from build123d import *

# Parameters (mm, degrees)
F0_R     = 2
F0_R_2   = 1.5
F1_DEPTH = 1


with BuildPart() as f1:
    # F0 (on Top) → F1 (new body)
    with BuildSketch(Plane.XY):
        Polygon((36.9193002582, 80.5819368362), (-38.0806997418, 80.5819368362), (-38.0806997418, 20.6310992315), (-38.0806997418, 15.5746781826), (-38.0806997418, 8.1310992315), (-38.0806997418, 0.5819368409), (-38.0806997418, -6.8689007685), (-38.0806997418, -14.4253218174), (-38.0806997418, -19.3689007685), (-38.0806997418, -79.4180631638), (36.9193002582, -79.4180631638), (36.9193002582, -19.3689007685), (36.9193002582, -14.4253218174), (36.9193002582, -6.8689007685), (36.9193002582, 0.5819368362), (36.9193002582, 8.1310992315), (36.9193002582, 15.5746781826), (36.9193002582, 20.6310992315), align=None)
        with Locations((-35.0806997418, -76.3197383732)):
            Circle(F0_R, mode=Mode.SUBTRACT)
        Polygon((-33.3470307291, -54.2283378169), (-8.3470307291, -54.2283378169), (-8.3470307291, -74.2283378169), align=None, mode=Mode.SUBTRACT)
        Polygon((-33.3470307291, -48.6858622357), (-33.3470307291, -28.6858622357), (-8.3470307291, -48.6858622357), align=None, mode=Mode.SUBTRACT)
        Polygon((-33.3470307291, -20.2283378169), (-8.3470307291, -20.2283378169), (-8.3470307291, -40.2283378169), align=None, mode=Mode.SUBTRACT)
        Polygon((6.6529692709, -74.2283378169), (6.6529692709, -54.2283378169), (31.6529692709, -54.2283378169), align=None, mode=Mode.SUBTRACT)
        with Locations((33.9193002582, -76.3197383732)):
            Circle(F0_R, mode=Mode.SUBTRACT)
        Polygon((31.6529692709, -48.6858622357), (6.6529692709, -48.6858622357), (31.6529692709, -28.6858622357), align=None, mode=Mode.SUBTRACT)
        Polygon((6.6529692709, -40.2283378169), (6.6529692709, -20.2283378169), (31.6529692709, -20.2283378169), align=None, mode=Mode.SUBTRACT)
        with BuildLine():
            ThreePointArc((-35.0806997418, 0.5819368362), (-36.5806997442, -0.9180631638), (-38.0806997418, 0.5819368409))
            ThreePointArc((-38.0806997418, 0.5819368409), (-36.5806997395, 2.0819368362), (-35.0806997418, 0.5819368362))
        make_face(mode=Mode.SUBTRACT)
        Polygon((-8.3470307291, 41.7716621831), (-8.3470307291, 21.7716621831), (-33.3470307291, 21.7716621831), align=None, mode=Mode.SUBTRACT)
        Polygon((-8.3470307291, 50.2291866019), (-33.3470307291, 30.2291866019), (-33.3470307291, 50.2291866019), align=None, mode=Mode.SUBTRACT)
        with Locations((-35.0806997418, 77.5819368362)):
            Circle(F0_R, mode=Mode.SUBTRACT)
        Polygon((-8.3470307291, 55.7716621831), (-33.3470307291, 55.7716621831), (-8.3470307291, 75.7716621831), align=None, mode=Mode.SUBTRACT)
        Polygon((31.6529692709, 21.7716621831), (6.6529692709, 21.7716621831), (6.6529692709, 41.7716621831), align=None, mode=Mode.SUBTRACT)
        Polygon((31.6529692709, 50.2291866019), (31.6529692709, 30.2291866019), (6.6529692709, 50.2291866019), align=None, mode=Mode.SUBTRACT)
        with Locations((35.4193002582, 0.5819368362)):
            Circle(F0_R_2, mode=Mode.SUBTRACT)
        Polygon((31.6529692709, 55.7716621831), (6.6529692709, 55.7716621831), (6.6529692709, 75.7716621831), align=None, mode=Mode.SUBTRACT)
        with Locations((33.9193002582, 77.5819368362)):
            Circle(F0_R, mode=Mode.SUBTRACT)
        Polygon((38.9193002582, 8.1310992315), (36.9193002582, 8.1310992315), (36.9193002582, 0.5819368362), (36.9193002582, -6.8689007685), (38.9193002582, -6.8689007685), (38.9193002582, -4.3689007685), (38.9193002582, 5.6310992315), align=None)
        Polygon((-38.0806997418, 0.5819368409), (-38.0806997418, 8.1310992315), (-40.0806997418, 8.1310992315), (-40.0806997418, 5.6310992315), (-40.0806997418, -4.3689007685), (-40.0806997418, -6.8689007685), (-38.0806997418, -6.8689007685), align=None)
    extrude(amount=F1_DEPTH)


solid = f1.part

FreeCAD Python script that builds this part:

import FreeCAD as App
import Part
import Sketcher
from FreeCAD import Vector

doc = App.newDocument("Part")
body = doc.addObject("PartDesign::Body", "Body")

# Sketch on XY plane
sketch1 = body.newObject("Sketcher::SketchObject", "Sketch")
sketch1.AttachmentSupport = (doc.getObject("XY_Plane"), [""])
sketch1.MapMode = "FlatFace"
sketch1.addGeometry(Part.LineSegment(Vector(-38.0807, 80.581937, 0), Vector(-38.0807, 8.131099, 0)), False)
sketch1.addGeometry(Part.LineSegment(Vector(-38.0807, 8.131099, 0), Vector(-40.0807, 8.131099, 0)), False)
sketch1.addGeometry(Part.LineSegment(Vector(-40.0807, 8.131099, 0), Vector(-40.0807, -6.868901, 0)), False)
sketch1.addGeometry(Part.LineSegment(Vector(-40.0807, -6.868901, 0), Vector(-38.0807, -6.868901, 0)), False)
sketch1.addGeometry(Part.LineSegment(Vector(-38.0807, -6.868901, 0), Vector(-38.0807, -79.418063, 0)), False)
sketch1.addGeometry(Part.LineSegment(Vector(-38.0807, -79.418063, 0), Vector(36.9193, -79.418063, 0)), False)
sketch1.addGeometry(Part.LineSegment(Vector(36.9193, -79.418063, 0), Vector(36.9193, -6.868901, 0)), False)
sketch1.addGeometry(Part.LineSegment(Vector(36.9193, -6.868901, 0), Vector(38.9193, -6.868901, 0)), False)
sketch1.addGeometry(Part.LineSegment(Vector(38.9193, -6.868901, 0), Vector(38.9193, 8.131099, 0)), False)
sketch1.addGeometry(Part.LineSegment(Vector(38.9193, 8.131099, 0), Vector(36.9193, 8.131099, 0)), False)
sketch1.addGeometry(Part.LineSegment(Vector(36.9193, 8.131099, 0), Vector(36.9193, 80.581937, 0)), False)
sketch1.addGeometry(Part.LineSegment(Vector(36.9193, 80.581937, 0), Vector(-38.0807, 80.581937, 0)), False)
sketch1.addGeometry(Part.Circle(Vector(-35.0807, -76.319738, 0), Vector(0, 0, 1), 2), False)
sketch1.addGeometry(Part.LineSegment(Vector(-8.347031, -74.228338, 0), Vector(-33.347031, -54.228338, 0)), False)
sketch1.addGeometry(Part.LineSegment(Vector(-33.347031, -54.228338, 0), Vector(-8.347031, -54.228338, 0)), False)
sketch1.addGeometry(Part.LineSegment(Vector(-8.347031, -54.228338, 0), Vector(-8.347031, -74.228338, 0)), False)
sketch1.addGeometry(Part.LineSegment(Vector(-8.347031, -48.685862, 0), Vector(-33.347031, -48.685862, 0)), False)
sketch1.addGeometry(Part.LineSegment(Vector(-33.347031, -48.685862, 0), Vector(-33.347031, -28.685862, 0)), False)
sketch1.addGeometry(Part.LineSegment(Vector(-33.347031, -28.685862, 0), Vector(-8.347031, -48.685862, 0)), False)
sketch1.addGeometry(Part.LineSegment(Vector(-8.347031, -40.228338, 0), Vector(-33.347031, -20.228338, 0)), False)
sketch1.addGeometry(Part.LineSegment(Vector(-33.347031, -20.228338, 0), Vector(-8.347031, -20.228338, 0)), False)
sketch1.addGeometry(Part.LineSegment(Vector(-8.347031, -20.228338, 0), Vector(-8.347031, -40.228338, 0)), False)
sketch1.addGeometry(Part.Circle(Vector(-36.5807, 0.581937, 0), Vector(0, 0, 1), 1.5), False)
sketch1.addGeometry(Part.LineSegment(Vector(31.652969, -54.228338, 0), Vector(6.652969, -74.228338, 0)), False)
sketch1.addGeometry(Part.LineSegment(Vector(6.652969, -74.228338, 0), Vector(6.652969, -54.228338, 0)), False)
sketch1.addGeometry(Part.LineSegment(Vector(6.652969, -54.228338, 0), Vector(31.652969, -54.228338, 0)), False)
sketch1.addGeometry(Part.Circle(Vector(33.9193, -76.319738, 0), Vector(0, 0, 1), 2), False)
sketch1.addGeometry(Part.LineSegment(Vector(31.652969, -28.685862, 0), Vector(31.652969, -48.685862, 0)), False)
sketch1.addGeometry(Part.LineSegment(Vector(31.652969, -48.685862, 0), Vector(6.652969, -48.685862, 0)), False)
sketch1.addGeometry(Part.LineSegment(Vector(6.652969, -48.685862, 0), Vector(31.652969, -28.685862, 0)), False)
sketch1.addGeometry(Part.LineSegment(Vector(31.652969, -20.228338, 0), Vector(6.652969, -40.228338, 0)), False)
sketch1.addGeometry(Part.LineSegment(Vector(6.652969, -40.228338, 0), Vector(6.652969, -20.228338, 0)), False)
sketch1.addGeometry(Part.LineSegment(Vector(6.652969, -20.228338, 0), Vector(31.652969, -20.228338, 0)), False)
sketch1.addGeometry(Part.Circle(Vector(35.4193, 0.581937, 0), Vector(0, 0, 1), 1.5), False)
sketch1.addGeometry(Part.LineSegment(Vector(-33.347031, 21.771662, 0), Vector(-8.347031, 41.771662, 0)), False)
sketch1.addGeometry(Part.LineSegment(Vector(-8.347031, 41.771662, 0), Vector(-8.347031, 21.771662, 0)), False)
sketch1.addGeometry(Part.LineSegment(Vector(-8.347031, 21.771662, 0), Vector(-33.347031, 21.771662, 0)), False)
sketch1.addGeometry(Part.LineSegment(Vector(-33.347031, 50.229187, 0), Vector(-8.347031, 50.229187, 0)), False)
sketch1.addGeometry(Part.LineSegment(Vector(-8.347031, 50.229187, 0), Vector(-33.347031, 30.229187, 0)), False)
sketch1.addGeometry(Part.LineSegment(Vector(-33.347031, 30.229187, 0), Vector(-33.347031, 50.229187, 0)), False)
sketch1.addGeometry(Part.Circle(Vector(-35.0807, 77.581937, 0), Vector(0, 0, 1), 2), False)
sketch1.addGeometry(Part.LineSegment(Vector(-8.347031, 75.771662, 0), Vector(-8.347031, 55.771662, 0)), False)
sketch1.addGeometry(Part.LineSegment(Vector(-8.347031, 55.771662, 0), Vector(-33.347031, 55.771662, 0)), False)
sketch1.addGeometry(Part.LineSegment(Vector(-33.347031, 55.771662, 0), Vector(-8.347031, 75.771662, 0)), False)
sketch1.addGeometry(Part.LineSegment(Vector(6.652969, 41.771662, 0), Vector(31.652969, 21.771662, 0)), False)
sketch1.addGeometry(Part.LineSegment(Vector(31.652969, 21.771662, 0), Vector(6.652969, 21.771662, 0)), False)
sketch1.addGeometry(Part.LineSegment(Vector(6.652969, 21.771662, 0), Vector(6.652969, 41.771662, 0)), False)
sketch1.addGeometry(Part.LineSegment(Vector(6.652969, 50.229187, 0), Vector(31.652969, 50.229187, 0)), False)
sketch1.addGeometry(Part.LineSegment(Vector(31.652969, 50.229187, 0), Vector(31.652969, 30.229187, 0)), False)
sketch1.addGeometry(Part.LineSegment(Vector(31.652969, 30.229187, 0), Vector(6.652969, 50.229187, 0)), False)
sketch1.addGeometry(Part.LineSegment(Vector(6.652969, 75.771662, 0), Vector(31.652969, 55.771662, 0)), False)
sketch1.addGeometry(Part.LineSegment(Vector(31.652969, 55.771662, 0), Vector(6.652969, 55.771662, 0)), False)
sketch1.addGeometry(Part.LineSegment(Vector(6.652969, 55.771662, 0), Vector(6.652969, 75.771662, 0)), False)
sketch1.addGeometry(Part.Circle(Vector(33.9193, 77.581937, 0), Vector(0, 0, 1), 2), False)
sketch1.addConstraint(Sketcher.Constraint("Coincident", 0, 2, 1, 1))
sketch1.addConstraint(Sketcher.Constraint("Coincident", 1, 2, 2, 1))
sketch1.addConstraint(Sketcher.Constraint("Coincident", 2, 2, 3, 1))
sketch1.addConstraint(Sketcher.Constraint("Coincident", 3, 2, 4, 1))
sketch1.addConstraint(Sketcher.Constraint("Coincident", 4, 2, 5, 1))
sketch1.addConstraint(Sketcher.Constraint("Coincident", 5, 2, 6, 1))
sketch1.addConstraint(Sketcher.Constraint("Coincident", 6, 2, 7, 1))
sketch1.addConstraint(Sketcher.Constraint("Coincident", 7, 2, 8, 1))
sketch1.addConstraint(Sketcher.Constraint("Coincident", 8, 2, 9, 1))
sketch1.addConstraint(Sketcher.Constraint("Coincident", 9, 2, 10, 1))
sketch1.addConstraint(Sketcher.Constraint("Coincident", 10, 2, 11, 1))
sketch1.addConstraint(Sketcher.Constraint("Coincident", 11, 2, 0, 1))
sketch1.addConstraint(Sketcher.Constraint("Coincident", 13, 2, 14, 1))
sketch1.addConstraint(Sketcher.Constraint("Coincident", 14, 2, 15, 1))
sketch1.addConstraint(Sketcher.Constraint("Coincident", 15, 2, 13, 1))
sketch1.addConstraint(Sketcher.Constraint("Coincident", 16, 2, 17, 1))
sketch1.addConstraint(Sketcher.Constraint("Coincident", 17, 2, 18, 1))
sketch1.addConstraint(Sketcher.Constraint("Coincident", 18, 2, 16, 1))
sketch1.addConstraint(Sketcher.Constraint("Coincident", 19, 2, 20, 1))
sketch1.addConstraint(Sketcher.Constraint("Coincident", 20, 2, 21, 1))
sketch1.addConstraint(Sketcher.Constraint("Coincident", 21, 2, 19, 1))
sketch1.addConstraint(Sketcher.Constraint("Coincident", 23, 2, 24, 1))
sketch1.addConstraint(Sketcher.Constraint("Coincident", 24, 2, 25, 1))
sketch1.addConstraint(Sketcher.Constraint("Coincident", 25, 2, 23, 1))
sketch1.addConstraint(Sketcher.Constraint("Coincident", 27, 2, 28, 1))
sketch1.addConstraint(Sketcher.Constraint("Coincident", 28, 2, 29, 1))
sketch1.addConstraint(Sketcher.Constraint("Coincident", 29, 2, 27, 1))
sketch1.addConstraint(Sketcher.Constraint("Coincident", 30, 2, 31, 1))
sketch1.addConstraint(Sketcher.Constraint("Coincident", 31, 2, 32, 1))
sketch1.addConstraint(Sketcher.Constraint("Coincident", 32, 2, 30, 1))
sketch1.addConstraint(Sketcher.Constraint("Coincident", 34, 2, 35, 1))
sketch1.addConstraint(Sketcher.Constraint("Coincident", 35, 2, 36, 1))
sketch1.addConstraint(Sketcher.Constraint("Coincident", 36, 2, 34, 1))
sketch1.addConstraint(Sketcher.Constraint("Coincident", 37, 2, 38, 1))
sketch1.addConstraint(Sketcher.Constraint("Coincident", 38, 2, 39, 1))
sketch1.addConstraint(Sketcher.Constraint("Coincident", 39, 2, 37, 1))
sketch1.addConstraint(Sketcher.Constraint("Coincident", 41, 2, 42, 1))
sketch1.addConstraint(Sketcher.Constraint("Coincident", 42, 2, 43, 1))
sketch1.addConstraint(Sketcher.Constraint("Coincident", 43, 2, 41, 1))
sketch1.addConstraint(Sketcher.Constraint("Coincident", 44, 2, 45, 1))
sketch1.addConstraint(Sketcher.Constraint("Coincident", 45, 2, 46, 1))
sketch1.addConstraint(Sketcher.Constraint("Coincident", 46, 2, 44, 1))
sketch1.addConstraint(Sketcher.Constraint("Coincident", 47, 2, 48, 1))
sketch1.addConstraint(Sketcher.Constraint("Coincident", 48, 2, 49, 1))
sketch1.addConstraint(Sketcher.Constraint("Coincident", 49, 2, 47, 1))
sketch1.addConstraint(Sketcher.Constraint("Coincident", 50, 2, 51, 1))
sketch1.addConstraint(Sketcher.Constraint("Coincident", 51, 2, 52, 1))
sketch1.addConstraint(Sketcher.Constraint("Coincident", 52, 2, 50, 1))
sketch1.addConstraint(Sketcher.Constraint("Vertical", 0))
sketch1.addConstraint(Sketcher.Constraint("Horizontal", 1))
sketch1.addConstraint(Sketcher.Constraint("Vertical", 2))
sketch1.addConstraint(Sketcher.Constraint("Horizontal", 3))
sketch1.addConstraint(Sketcher.Constraint("Vertical", 4))
sketch1.addConstraint(Sketcher.Constraint("Horizontal", 5))
sketch1.addConstraint(Sketcher.Constraint("Vertical", 6))
sketch1.addConstraint(Sketcher.Constraint("Horizontal", 7))
sketch1.addConstraint(Sketcher.Constraint("Vertical", 8))
sketch1.addConstraint(Sketcher.Constraint("Horizontal", 9))
sketch1.addConstraint(Sketcher.Constraint("Vertical", 10))
sketch1.addConstraint(Sketcher.Constraint("Horizontal", 11))
sketch1.addConstraint(Sketcher.Constraint("Horizontal", 14))
sketch1.addConstraint(Sketcher.Constraint("Vertical", 15))
sketch1.addConstraint(Sketcher.Constraint("Horizontal", 16))
sketch1.addConstraint(Sketcher.Constraint("Vertical", 17))
sketch1.addConstraint(Sketcher.Constraint("Horizontal", 20))
sketch1.addConstraint(Sketcher.Constraint("Vertical", 21))
sketch1.addConstraint(Sketcher.Constraint("Vertical", 24))
sketch1.addConstraint(Sketcher.Constraint("Horizontal", 25))
sketch1.addConstraint(Sketcher.Constraint("Vertical", 27))
sketch1.addConstraint(Sketcher.Constraint("Horizontal", 28))
sketch1.addConstraint(Sketcher.Constraint("Vertical", 31))
sketch1.addConstraint(Sketcher.Constraint("Horizontal", 32))
sketch1.addConstraint(Sketcher.Constraint("Vertical", 35))
sketch1.addConstraint(Sketcher.Constraint("Horizontal", 36))
sketch1.addConstraint(Sketcher.Constraint("Horizontal", 37))
sketch1.addConstraint(Sketcher.Constraint("Vertical", 39))
sketch1.addConstraint(Sketcher.Constraint("Vertical", 41))
sketch1.addConstraint(Sketcher.Constraint("Horizontal", 42))
sketch1.addConstraint(Sketcher.Constraint("Horizontal", 45))
sketch1.addConstraint(Sketcher.Constraint("Vertical", 46))
sketch1.addConstraint(Sketcher.Constraint("Horizontal", 47))
sketch1.addConstraint(Sketcher.Constraint("Vertical", 48))
sketch1.addConstraint(Sketcher.Constraint("Horizontal", 51))
sketch1.addConstraint(Sketcher.Constraint("Vertical", 52))
sketch1.addConstraint(Sketcher.Constraint("Equal", 12, 26))
sketch1.addConstraint(Sketcher.Constraint("Equal", 22, 33))
sketch1.addConstraint(Sketcher.Constraint("Equal", 26, 40))
sketch1.addConstraint(Sketcher.Constraint("Equal", 40, 53))
sketch1.addConstraint(Sketcher.Constraint("Parallel", 13, 18))
sketch1.addConstraint(Sketcher.Constraint("Parallel", 18, 19))
sketch1.addConstraint(Sketcher.Constraint("Parallel", 23, 29))
sketch1.addConstraint(Sketcher.Constraint("Parallel", 29, 30))
sketch1.addConstraint(Sketcher.Constraint("Parallel", 30, 34))
sketch1.addConstraint(Sketcher.Constraint("Parallel", 34, 38))
sketch1.addConstraint(Sketcher.Constraint("Parallel", 38, 43))
sketch1.addConstraint(Sketcher.Constraint("Parallel", 19, 44))
sketch1.addConstraint(Sketcher.Constraint("Parallel", 44, 49))
sketch1.addConstraint(Sketcher.Constraint("Parallel", 49, 50))
sketch1.addConstraint(Sketcher.Constraint("Horizontal", 12, 3, 26, 3))
sketch1.addConstraint(Sketcher.Constraint("Horizontal", 22, 3, 33, 3))
sketch1.addConstraint(Sketcher.Constraint("Horizontal", 40, 3, 53, 3))
sketch1.addConstraint(Sketcher.Constraint("Horizontal", 3, 2, 6, 2))
sketch1.addConstraint(Sketcher.Constraint("Horizontal", 1, 2, 8, 2))
sketch1.addConstraint(Sketcher.Constraint("Horizontal", 15, 2, 23, 2))
sketch1.addConstraint(Sketcher.Constraint("Horizontal", 14, 2, 24, 2))
sketch1.addConstraint(Sketcher.Constraint("Horizontal", 18, 2, 27, 2))
sketch1.addConstraint(Sketcher.Constraint("Horizontal", 17, 2, 29, 2))
sketch1.addConstraint(Sketcher.Constraint("Horizontal", 21, 2, 30, 2))
sketch1.addConstraint(Sketcher.Constraint("Horizontal", 20, 2, 31, 2))
sketch1.addConstraint(Sketcher.Constraint("Horizontal", 36, 2, 44, 2))
sketch1.addConstraint(Sketcher.Constraint("Horizontal", 34, 2, 46, 2))
sketch1.addConstraint(Sketcher.Constraint("Horizontal", 39, 2, 47, 2))
sketch1.addConstraint(Sketcher.Constraint("Horizontal", 38, 2, 48, 2))
sketch1.addConstraint(Sketcher.Constraint("Horizontal", 42, 2, 50, 2))
sketch1.addConstraint(Sketcher.Constraint("Horizontal", 43, 2, 52, 2))
sketch1.addConstraint(Sketcher.Constraint("Vertical", 12, 3, 40, 3))
sketch1.addConstraint(Sketcher.Constraint("Vertical", 26, 3, 53, 3))
sketch1.addConstraint(Sketcher.Constraint("Vertical", 0, 2, 3, 2))
sketch1.addConstraint(Sketcher.Constraint("Vertical", 6, 2, 9, 2))
sketch1.addConstraint(Sketcher.Constraint("Vertical", 13, 2, 16, 2))
sketch1.addConstraint(Sketcher.Constraint("Vertical", 15, 2, 18, 2))
sketch1.addConstraint(Sketcher.Constraint("Vertical", 17, 2, 19, 2))
sketch1.addConstraint(Sketcher.Constraint("Vertical", 18, 2, 20, 2))
sketch1.addConstraint(Sketcher.Constraint("Vertical", 25, 2, 27, 2))
sketch1.addConstraint(Sketcher.Constraint("Vertical", 28, 2, 30, 2))
sketch1.addConstraint(Sketcher.Constraint("Vertical", 21, 2, 34, 2))
sketch1.addConstraint(Sketcher.Constraint("Vertical", 19, 2, 36, 2))
sketch1.addConstraint(Sketcher.Constraint("Vertical", 35, 2, 37, 2))
sketch1.addConstraint(Sketcher.Constraint("Vertical", 36, 2, 38, 2))
sketch1.addConstraint(Sketcher.Constraint("Vertical", 37, 2, 41, 2))
sketch1.addConstraint(Sketcher.Constraint("Vertical", 39, 2, 42, 2))
sketch1.addConstraint(Sketcher.Constraint("Vertical", 32, 2, 44, 2))
sketch1.addConstraint(Sketcher.Constraint("Vertical", 31, 2, 45, 2))
sketch1.addConstraint(Sketcher.Constraint("Vertical", 44, 2, 47, 2))
sketch1.addConstraint(Sketcher.Constraint("Vertical", 48, 2, 50, 2))
sketch1.addConstraint(Sketcher.Constraint("Equal", 3, 7))
sketch1.addConstraint(Sketcher.Constraint("Diameter", 12, 4.0))
sketch1.addConstraint(Sketcher.Constraint("Diameter", 22, 3.0))
sketch1.addConstraint(Sketcher.Constraint("DistanceX", 1, 2, 1, 1, 2.0))
sketch1.addConstraint(Sketcher.Constraint("DistanceX", 5, 1, 5, 2, 75.0))
sketch1.addConstraint(Sketcher.Constraint("DistanceX", 14, 1, 14, 2, 25.0))
sketch1.addConstraint(Sketcher.Constraint("DistanceY", 2, 2, 2, 1, 15.0))
sketch1.addConstraint(Sketcher.Constraint("DistanceY", 15, 2, 15, 1, 20.0))
sketch1.addConstraint(Sketcher.Constraint("DistanceX", 12, 3, 26, 3, 69.0))
sketch1.addConstraint(Sketcher.Constraint("DistanceX", 22, 3, 33, 3, 72.0))
sketch1.addConstraint(Sketcher.Constraint("DistanceY", 22, 3, 40, 3, 77.0))
sketch1.addConstraint(Sketcher.Constraint("DistanceX", 0, 2, 40, 3, 3.0))
sketch1.addConstraint(Sketcher.Constraint("DistanceY", 4, 2, 22, 3, 80.0))
sketch1.addConstraint(Sketcher.Constraint("DistanceY", 53, 3, 10, 2, 3.0))
sketch1.addConstraint(Sketcher.Constraint("DistanceY", 14, 2, 20, 2, 34.0))
sketch1.addConstraint(Sketcher.Constraint("DistanceX", 15, 2, 23, 2, 15.0))
sketch1.addConstraint(Sketcher.Constraint("DistanceY", 34, 2, 41, 2, 14.0))
sketch1.addConstraint(Sketcher.Constraint("DistanceX", 22, 3, 12, 3, 1.5))
sketch1.addConstraint(Sketcher.Constraint("DistanceX", 12, 3, -1, 1, 35.0807))
sketch1.addConstraint(Sketcher.Constraint("DistanceY", -1, 1, 0, 2, 8.131099))
sketch1.addConstraint(Sketcher.Constraint("DistanceY", 12, 3, 13, 2, 22.091401))
sketch1.addConstraint(Sketcher.Constraint("DistanceY", 4, 2, 16, 2, 30.732201))
sketch1.addConstraint(Sketcher.Constraint("DistanceY", 0, 2, 0, 1, 72.450838))
sketch1.addConstraint(Sketcher.Constraint("DistanceY", 12, 3, -1, 1, 76.319738))
sketch1.addConstraint(Sketcher.Constraint("DistanceX", 13, 2, -1, 1, 33.347031))
sketch1.addConstraint(Sketcher.Constraint("DistanceY", 37, 2, 40, 3, 27.35275))
sketch1.addConstraint(Sketcher.Constraint("DistanceY", -1, 1, 34, 2, 41.771662))
pad1 = body.newObject("PartDesign::Pad", "Pad")
pad1.Profile = sketch1
pad1.Length = 1

doc.recompute()
